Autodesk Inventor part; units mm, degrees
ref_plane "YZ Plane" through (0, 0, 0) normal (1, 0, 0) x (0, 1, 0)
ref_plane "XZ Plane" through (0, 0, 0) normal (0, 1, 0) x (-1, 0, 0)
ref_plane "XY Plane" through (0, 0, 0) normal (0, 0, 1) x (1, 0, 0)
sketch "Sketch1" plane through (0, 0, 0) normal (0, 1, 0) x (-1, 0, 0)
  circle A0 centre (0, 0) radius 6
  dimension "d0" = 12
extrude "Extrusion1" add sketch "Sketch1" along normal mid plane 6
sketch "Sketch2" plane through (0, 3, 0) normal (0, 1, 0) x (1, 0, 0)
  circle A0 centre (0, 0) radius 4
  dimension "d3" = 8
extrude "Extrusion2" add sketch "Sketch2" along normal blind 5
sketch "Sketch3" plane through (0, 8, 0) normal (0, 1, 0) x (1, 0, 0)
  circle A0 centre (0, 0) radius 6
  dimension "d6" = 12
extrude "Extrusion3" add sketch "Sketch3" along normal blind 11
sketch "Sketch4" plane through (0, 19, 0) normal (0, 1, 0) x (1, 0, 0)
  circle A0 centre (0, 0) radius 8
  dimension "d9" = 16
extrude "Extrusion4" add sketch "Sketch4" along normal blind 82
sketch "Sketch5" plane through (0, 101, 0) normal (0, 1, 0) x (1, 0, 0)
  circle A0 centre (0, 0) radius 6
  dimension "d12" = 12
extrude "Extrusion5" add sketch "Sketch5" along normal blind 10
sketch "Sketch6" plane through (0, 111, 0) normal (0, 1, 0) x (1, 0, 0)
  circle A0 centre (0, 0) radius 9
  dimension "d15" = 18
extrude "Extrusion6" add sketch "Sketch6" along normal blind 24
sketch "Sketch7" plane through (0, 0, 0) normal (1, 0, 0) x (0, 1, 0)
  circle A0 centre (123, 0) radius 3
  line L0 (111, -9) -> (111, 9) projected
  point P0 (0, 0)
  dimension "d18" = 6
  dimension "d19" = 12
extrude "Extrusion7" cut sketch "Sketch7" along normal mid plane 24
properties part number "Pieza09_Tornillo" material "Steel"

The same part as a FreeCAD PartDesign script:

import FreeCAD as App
import Part
import Sketcher
from FreeCAD import Vector
Q = App.Units.Quantity

doc = App.newDocument("Part")
body = doc.addObject("PartDesign::Body", "Body")

sketch1 = body.newObject("Sketcher::SketchObject", "Sketch")
sketch1.AttachmentSupport = (doc.getObject("XZ_Plane"), [""])
sketch1.MapMode = "FlatFace"
sketch1.addGeometry(Part.Circle(Vector(0, 0, 0), Vector(0, 0, 1), 6), False)
sketch1.addConstraint(Sketcher.Constraint("Coincident", 0, 3, -1, 1))
sketch1.addConstraint(Sketcher.Constraint("Diameter", 0, Q("12 mm")))
pad1 = body.newObject("PartDesign::Pad", "Pad")
pad1.Profile = sketch1
pad1.Length = 6
pad1.Midplane = True

sketch2 = body.newObject("Sketcher::SketchObject", "Sketch001")
sketch2.AttachmentSupport = (doc.getObject("XZ_Plane"), [""])
sketch2.MapMode = "FlatFace"
sketch2.AttachmentOffset = App.Placement(Vector(0, 0, -3), App.Rotation())
sketch2.addGeometry(Part.Circle(Vector(0, 0, 0), Vector(0, 0, 1), 4), False)
sketch2.addConstraint(Sketcher.Constraint("Coincident", 0, 3, -1, 1))
sketch2.addConstraint(Sketcher.Constraint("Diameter", 0, Q("8 mm")))
pad2 = body.newObject("PartDesign::Pad", "Pad001")
pad2.Profile = sketch2
pad2.Length = 5
pad2.Reversed = True

sketch3 = body.newObject("Sketcher::SketchObject", "Sketch002")
sketch3.AttachmentSupport = (doc.getObject("XZ_Plane"), [""])
sketch3.MapMode = "FlatFace"
sketch3.AttachmentOffset = App.Placement(Vector(0, 0, -8), App.Rotation())
sketch3.addGeometry(Part.Circle(Vector(0, 0, 0), Vector(0, 0, 1), 6), False)
sketch3.addConstraint(Sketcher.Constraint("Coincident", 0, 3, -1, 1))
sketch3.addConstraint(Sketcher.Constraint("Diameter", 0, Q("12 mm")))
pad3 = body.newObject("PartDesign::Pad", "Pad002")
pad3.Profile = sketch3
pad3.Length = 11
pad3.Reversed = True

sketch4 = body.newObject("Sketcher::SketchObject", "Sketch003")
sketch4.AttachmentSupport = (doc.getObject("XZ_Plane"), [""])
sketch4.MapMode = "FlatFace"
sketch4.AttachmentOffset = App.Placement(Vector(0, 0, -19), App.Rotation())
sketch4.addGeometry(Part.Circle(Vector(0, 0, 0), Vector(0, 0, 1), 8), False)
sketch4.addConstraint(Sketcher.Constraint("Coincident", 0, 3, -1, 1))
sketch4.addConstraint(Sketcher.Constraint("Diameter", 0, Q("16 mm")))
pad4 = body.newObject("PartDesign::Pad", "Pad003")
pad4.Profile = sketch4
pad4.Length = 82
pad4.Reversed = True

sketch5 = body.newObject("Sketcher::SketchObject", "Sketch004")
sketch5.AttachmentSupport = (doc.getObject("XZ_Plane"), [""])
sketch5.MapMode = "FlatFace"
sketch5.AttachmentOffset = App.Placement(Vector(0, 0, -101), App.Rotation())
sketch5.addGeometry(Part.Circle(Vector(0, 0, 0), Vector(0, 0, 1), 6), False)
sketch5.addConstraint(Sketcher.Constraint("Coincident", 0, 3, -1, 1))
sketch5.addConstraint(Sketcher.Constraint("Diameter", 0, Q("12 mm")))
pad5 = body.newObject("PartDesign::Pad", "Pad004")
pad5.Profile = sketch5
pad5.Length = 10
pad5.Reversed = True

sketch6 = body.newObject("Sketcher::SketchObject", "Sketch005")
sketch6.AttachmentSupport = (doc.getObject("XZ_Plane"), [""])
sketch6.MapMode = "FlatFace"
sketch6.AttachmentOffset = App.Placement(Vector(0, 0, -111), App.Rotation())
sketch6.addGeometry(Part.Circle(Vector(0, 0, 0), Vector(0, 0, 1), 9), False)
sketch6.addConstraint(Sketcher.Constraint("Coincident", 0, 3, -1, 1))
sketch6.addConstraint(Sketcher.Constraint("Diameter", 0, Q("18 mm")))
pad6 = body.newObject("PartDesign::Pad", "Pad005")
pad6.Profile = sketch6
pad6.Length = 24
pad6.Reversed = True

sketch7 = body.newObject("Sketcher::SketchObject", "Sketch006")
sketch7.AttachmentSupport = (doc.getObject("YZ_Plane"), [""])
sketch7.MapMode = "FlatFace"
sketch7.addGeometry(Part.Circle(Vector(123, 0, 0), Vector(0, 0, 1), 3), False)
sketch7.addConstraint(Sketcher.Constraint("PointOnObject", 0, 3, -1))
sketch7.addConstraint(Sketcher.Constraint("Diameter", 0, Q("6 mm")))
sketch7.addConstraint(Sketcher.Constraint("DistanceX", -1, 1, 0, 3, Q("123 mm")))
pocket1 = body.newObject("PartDesign::Pocket", "Pocket")
pocket1.Profile = sketch7
pocket1.Length = 24
pocket1.Midplane = True

doc.recompute()
